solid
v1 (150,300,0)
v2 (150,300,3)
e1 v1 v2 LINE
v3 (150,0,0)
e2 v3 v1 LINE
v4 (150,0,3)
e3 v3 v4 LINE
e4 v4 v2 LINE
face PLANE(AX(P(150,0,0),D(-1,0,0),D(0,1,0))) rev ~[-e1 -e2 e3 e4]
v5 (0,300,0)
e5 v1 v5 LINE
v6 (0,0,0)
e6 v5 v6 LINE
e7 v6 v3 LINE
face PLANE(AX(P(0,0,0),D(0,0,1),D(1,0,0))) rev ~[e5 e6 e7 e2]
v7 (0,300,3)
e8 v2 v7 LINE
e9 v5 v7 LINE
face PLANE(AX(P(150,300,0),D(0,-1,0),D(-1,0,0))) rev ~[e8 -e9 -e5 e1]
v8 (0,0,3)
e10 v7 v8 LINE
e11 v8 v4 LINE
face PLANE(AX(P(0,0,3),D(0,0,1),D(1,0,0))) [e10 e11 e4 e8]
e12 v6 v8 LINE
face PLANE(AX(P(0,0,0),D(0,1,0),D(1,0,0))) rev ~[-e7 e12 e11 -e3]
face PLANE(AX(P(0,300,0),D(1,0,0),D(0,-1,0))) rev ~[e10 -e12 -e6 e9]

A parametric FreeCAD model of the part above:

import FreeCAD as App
import Part
import Sketcher
from FreeCAD import Vector
Q = App.Units.Quantity


def add_polygon(sketch, points):
    """Adds a closed chain of lines whose ends are joined by coincident constraints."""
    first, n = sketch.GeometryCount, len(points)
    for a, b in zip(points, points[1:] + points[:1]):
        sketch.addGeometry(Part.LineSegment(App.Vector(*a, 0), App.Vector(*b, 0)), False)
    for i in range(n):
        sketch.addConstraint(Sketcher.Constraint("Coincident", first + i, 2, first + (i + 1) % n, 1))

doc = App.newDocument("Part")
body = doc.addObject("PartDesign::Body", "Body")

# Sketch on XY plane
sketch1 = body.newObject("Sketcher::SketchObject", "Sketch")
sketch1.AttachmentSupport = (doc.getObject("XY_Plane"), [""])
sketch1.MapMode = "FlatFace"
add_polygon(sketch1, [(0, 300), (0, 0), (150, 0), (150, 300)])  # lines 0-3
sketch1.addConstraint(Sketcher.Constraint("Vertical", 0))
sketch1.addConstraint(Sketcher.Constraint("Horizontal", 1))
sketch1.addConstraint(Sketcher.Constraint("Vertical", 2))
sketch1.addConstraint(Sketcher.Constraint("Horizontal", 3))
sketch1.addConstraint(Sketcher.Constraint("Coincident", 0, 2, -1, 1))
sketch1.addConstraint(Sketcher.Constraint("DistanceX", 1, 1, 1, 2, Q("150 mm")))
sketch1.addConstraint(Sketcher.Constraint("DistanceY", 0, 2, 0, 1, Q("300 mm")))
pad1 = body.newObject("PartDesign::Pad", "Pad")
pad1.Profile = sketch1
pad1.Length = 3

doc.recompute()
